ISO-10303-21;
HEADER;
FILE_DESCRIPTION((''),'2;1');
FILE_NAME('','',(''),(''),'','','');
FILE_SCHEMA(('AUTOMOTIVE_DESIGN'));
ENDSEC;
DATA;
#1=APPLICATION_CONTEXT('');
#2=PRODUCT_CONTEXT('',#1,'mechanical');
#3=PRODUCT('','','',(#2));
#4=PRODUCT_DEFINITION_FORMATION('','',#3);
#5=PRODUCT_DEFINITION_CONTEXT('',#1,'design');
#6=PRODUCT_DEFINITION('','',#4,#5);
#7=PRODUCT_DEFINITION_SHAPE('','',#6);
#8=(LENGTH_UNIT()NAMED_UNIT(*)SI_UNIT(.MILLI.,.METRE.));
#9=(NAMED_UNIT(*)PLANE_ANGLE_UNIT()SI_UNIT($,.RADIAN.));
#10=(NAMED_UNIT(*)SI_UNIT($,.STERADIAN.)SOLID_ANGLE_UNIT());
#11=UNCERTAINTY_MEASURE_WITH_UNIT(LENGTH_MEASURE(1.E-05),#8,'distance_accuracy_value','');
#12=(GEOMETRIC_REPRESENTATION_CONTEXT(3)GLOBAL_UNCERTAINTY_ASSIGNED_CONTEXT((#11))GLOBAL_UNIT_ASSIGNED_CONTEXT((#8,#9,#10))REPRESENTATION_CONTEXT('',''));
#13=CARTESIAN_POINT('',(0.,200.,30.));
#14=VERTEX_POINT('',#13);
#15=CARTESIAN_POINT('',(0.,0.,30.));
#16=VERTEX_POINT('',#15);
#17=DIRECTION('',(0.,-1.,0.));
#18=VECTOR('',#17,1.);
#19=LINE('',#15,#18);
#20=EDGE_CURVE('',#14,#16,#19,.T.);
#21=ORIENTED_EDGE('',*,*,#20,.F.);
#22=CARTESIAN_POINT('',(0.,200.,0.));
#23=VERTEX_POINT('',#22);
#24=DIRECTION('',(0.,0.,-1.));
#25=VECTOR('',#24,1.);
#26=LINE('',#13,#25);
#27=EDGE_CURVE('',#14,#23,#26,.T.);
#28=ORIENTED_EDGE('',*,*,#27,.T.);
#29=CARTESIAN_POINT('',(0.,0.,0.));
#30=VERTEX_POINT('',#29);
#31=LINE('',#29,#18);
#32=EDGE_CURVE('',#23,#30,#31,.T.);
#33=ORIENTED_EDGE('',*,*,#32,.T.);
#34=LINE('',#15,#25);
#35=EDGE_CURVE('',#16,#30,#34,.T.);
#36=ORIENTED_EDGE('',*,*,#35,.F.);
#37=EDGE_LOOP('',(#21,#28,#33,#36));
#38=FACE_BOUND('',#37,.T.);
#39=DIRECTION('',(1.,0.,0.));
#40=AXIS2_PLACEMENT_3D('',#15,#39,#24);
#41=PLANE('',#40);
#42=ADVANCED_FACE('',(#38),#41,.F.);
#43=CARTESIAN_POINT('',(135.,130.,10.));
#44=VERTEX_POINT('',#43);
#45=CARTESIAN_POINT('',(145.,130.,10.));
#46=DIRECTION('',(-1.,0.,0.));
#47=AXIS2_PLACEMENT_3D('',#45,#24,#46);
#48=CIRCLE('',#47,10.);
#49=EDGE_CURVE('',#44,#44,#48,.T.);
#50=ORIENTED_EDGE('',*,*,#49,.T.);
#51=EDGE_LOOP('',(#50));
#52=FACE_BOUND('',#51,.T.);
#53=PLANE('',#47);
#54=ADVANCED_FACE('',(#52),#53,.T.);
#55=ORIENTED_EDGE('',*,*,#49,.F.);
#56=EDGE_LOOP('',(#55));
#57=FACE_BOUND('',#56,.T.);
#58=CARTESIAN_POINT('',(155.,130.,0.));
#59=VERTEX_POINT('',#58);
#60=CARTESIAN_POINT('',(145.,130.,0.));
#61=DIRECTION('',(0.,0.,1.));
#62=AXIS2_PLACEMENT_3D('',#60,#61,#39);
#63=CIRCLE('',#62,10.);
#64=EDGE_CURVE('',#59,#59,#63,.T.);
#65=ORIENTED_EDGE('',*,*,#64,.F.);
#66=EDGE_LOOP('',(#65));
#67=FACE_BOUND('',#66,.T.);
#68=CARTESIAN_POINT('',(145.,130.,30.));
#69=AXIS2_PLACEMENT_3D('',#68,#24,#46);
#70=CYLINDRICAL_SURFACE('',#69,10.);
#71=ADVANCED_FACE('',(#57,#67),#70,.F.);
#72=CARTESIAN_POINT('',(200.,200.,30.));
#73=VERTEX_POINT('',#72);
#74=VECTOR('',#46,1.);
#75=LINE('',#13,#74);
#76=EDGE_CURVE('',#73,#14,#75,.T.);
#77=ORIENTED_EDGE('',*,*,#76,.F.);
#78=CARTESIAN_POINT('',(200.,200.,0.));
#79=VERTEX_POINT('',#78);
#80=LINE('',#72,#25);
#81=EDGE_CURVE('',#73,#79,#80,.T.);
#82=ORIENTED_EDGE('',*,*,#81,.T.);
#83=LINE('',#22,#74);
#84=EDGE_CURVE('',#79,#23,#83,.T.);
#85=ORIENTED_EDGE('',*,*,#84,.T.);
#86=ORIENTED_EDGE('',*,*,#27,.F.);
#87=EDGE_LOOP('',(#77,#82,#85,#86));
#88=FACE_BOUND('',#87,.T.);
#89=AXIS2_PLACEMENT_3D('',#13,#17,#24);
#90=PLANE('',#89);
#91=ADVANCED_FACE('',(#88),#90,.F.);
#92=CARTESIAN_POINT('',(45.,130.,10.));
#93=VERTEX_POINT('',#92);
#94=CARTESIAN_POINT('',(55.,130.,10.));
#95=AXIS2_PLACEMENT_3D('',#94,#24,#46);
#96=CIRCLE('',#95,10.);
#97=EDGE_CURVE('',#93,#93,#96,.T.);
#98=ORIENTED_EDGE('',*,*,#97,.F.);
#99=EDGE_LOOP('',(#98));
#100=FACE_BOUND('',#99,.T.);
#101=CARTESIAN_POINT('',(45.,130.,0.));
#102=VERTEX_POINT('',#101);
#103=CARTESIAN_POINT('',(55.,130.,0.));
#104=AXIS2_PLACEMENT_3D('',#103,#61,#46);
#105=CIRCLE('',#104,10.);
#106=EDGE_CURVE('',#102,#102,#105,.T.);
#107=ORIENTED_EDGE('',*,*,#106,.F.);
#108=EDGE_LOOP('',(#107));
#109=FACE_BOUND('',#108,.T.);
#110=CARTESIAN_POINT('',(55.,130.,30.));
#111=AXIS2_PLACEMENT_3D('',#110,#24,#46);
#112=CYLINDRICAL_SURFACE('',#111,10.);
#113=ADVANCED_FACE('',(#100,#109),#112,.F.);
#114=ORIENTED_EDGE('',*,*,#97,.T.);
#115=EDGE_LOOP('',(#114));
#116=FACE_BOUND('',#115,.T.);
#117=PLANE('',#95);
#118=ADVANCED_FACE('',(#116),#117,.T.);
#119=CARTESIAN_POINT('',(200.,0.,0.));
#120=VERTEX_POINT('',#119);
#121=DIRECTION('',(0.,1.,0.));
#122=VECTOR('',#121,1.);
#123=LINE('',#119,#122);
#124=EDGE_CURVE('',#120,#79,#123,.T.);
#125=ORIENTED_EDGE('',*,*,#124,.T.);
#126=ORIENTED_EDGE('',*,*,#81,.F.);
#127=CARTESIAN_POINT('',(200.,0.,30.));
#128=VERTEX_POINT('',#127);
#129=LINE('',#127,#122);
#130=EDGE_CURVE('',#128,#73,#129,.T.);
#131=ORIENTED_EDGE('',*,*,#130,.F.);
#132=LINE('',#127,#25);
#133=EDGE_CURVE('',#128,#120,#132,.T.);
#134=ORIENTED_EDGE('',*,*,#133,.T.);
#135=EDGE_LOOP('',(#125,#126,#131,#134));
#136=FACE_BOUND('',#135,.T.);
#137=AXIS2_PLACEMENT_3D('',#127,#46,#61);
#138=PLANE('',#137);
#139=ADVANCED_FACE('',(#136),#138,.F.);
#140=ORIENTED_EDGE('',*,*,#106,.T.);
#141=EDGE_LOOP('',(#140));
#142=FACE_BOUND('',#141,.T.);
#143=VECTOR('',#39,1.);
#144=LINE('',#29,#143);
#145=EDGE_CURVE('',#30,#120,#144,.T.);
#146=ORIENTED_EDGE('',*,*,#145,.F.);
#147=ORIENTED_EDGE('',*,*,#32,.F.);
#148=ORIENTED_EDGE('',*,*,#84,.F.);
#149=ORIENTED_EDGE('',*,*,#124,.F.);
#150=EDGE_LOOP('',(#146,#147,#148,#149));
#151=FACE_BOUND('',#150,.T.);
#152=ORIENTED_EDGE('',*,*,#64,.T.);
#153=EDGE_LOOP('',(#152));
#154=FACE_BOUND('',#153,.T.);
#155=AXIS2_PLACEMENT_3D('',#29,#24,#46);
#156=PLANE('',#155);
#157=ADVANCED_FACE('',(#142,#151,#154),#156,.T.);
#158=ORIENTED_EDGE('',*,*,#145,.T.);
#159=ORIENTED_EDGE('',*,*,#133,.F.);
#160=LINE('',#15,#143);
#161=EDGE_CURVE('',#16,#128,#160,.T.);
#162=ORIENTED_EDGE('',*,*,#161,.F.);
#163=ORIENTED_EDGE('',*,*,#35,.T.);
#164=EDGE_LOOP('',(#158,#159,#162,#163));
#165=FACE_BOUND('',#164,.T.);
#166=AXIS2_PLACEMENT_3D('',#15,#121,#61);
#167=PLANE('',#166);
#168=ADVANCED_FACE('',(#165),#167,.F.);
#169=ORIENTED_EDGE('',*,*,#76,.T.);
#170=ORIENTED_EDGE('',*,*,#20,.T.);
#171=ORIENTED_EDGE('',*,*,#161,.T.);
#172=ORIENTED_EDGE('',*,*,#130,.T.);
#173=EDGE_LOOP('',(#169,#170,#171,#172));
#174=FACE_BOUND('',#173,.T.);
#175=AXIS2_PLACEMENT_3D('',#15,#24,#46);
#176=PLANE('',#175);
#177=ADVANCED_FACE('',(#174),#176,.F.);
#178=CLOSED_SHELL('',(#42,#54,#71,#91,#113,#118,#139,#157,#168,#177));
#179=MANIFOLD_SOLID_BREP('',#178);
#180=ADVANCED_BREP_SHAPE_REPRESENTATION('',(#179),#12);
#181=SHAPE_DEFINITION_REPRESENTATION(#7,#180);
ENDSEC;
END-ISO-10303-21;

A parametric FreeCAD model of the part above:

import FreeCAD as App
import Part
import Sketcher
from FreeCAD import Vector
Q = App.Units.Quantity

doc = App.newDocument("Part")
body = doc.addObject("PartDesign::Body", "Body")

# Sketch on XY plane
sketch1 = body.newObject("Sketcher::SketchObject", "Sketch")
sketch1.AttachmentSupport = (doc.getObject("XY_Plane"), [""])
sketch1.MapMode = "FlatFace"
sketch1.addGeometry([
    Part.LineSegment(Vector(0, 200, 0), Vector(0, 0, 0)),  # 0
    Part.LineSegment(Vector(0, 0, 0), Vector(200, 0, 0)),  # 1
    Part.LineSegment(Vector(200, 0, 0), Vector(200, 200, 0)),  # 2
    Part.LineSegment(Vector(200, 200, 0), Vector(0, 200, 0)),  # 3
    Part.Circle(Vector(55, 130, 0), Vector(0, 0, 1), 10),  # 4
    Part.Circle(Vector(145, 130, 0), Vector(0, 0, 1), 10),  # 5
], False)
sketch1.addConstraint([
    Sketcher.Constraint("Coincident", 0, 2, 1, 1),
    Sketcher.Constraint("Coincident", 1, 2, 2, 1),
    Sketcher.Constraint("Coincident", 2, 2, 3, 1),
    Sketcher.Constraint("Coincident", 3, 2, 0, 1),
    Sketcher.Constraint("Vertical", 0),
    Sketcher.Constraint("Horizontal", 1),
    Sketcher.Constraint("Vertical", 2),
    Sketcher.Constraint("Horizontal", 3),
    Sketcher.Constraint("Coincident", 0, 2, -1, 1),
    Sketcher.Constraint("Equal", 4, 5),
    Sketcher.Constraint("Horizontal", 4, 3, 5, 3),
    Sketcher.Constraint("Equal", 3, 0),
    Sketcher.Constraint("Diameter", 4, Q("20 mm")),
    Sketcher.Constraint("DistanceX", 1, 1, 1, 2, Q("200 mm")),
    Sketcher.Constraint("DistanceX", -1, 1, 4, 3, Q("55 mm")),
    Sketcher.Constraint("DistanceY", -1, 1, 4, 3, Q("130 mm")),
    Sketcher.Constraint("DistanceX", -1, 1, 5, 3, Q("145 mm")),
])
pad1 = body.newObject("PartDesign::Pad", "Pad")
pad1.Profile = sketch1
pad1.Length = 30

# Sketch on XY plane
sketch2 = body.newObject("Sketcher::SketchObject", "Sketch001")
sketch2.AttachmentSupport = (doc.getObject("XY_Plane"), [""])
sketch2.MapMode = "FlatFace"
sketch2.AttachmentOffset = App.Placement(Vector(0, 0, 10), App.Rotation())
sketch2.addGeometry([
    Part.Circle(Vector(145, 130, 0), Vector(0, 0, 1), 10),
    Part.Circle(Vector(55, 130, 0), Vector(0, 0, 1), 10),
], False)
sketch2.addConstraint([
    Sketcher.Constraint("Equal", 0, 1),
    Sketcher.Constraint("Horizontal", 0, 3, 1, 3),
    Sketcher.Constraint("Diameter", 0, Q("20 mm")),
    Sketcher.Constraint("DistanceX", -1, 1, 0, 3, Q("145 mm")),
    Sketcher.Constraint("DistanceY", -1, 1, 0, 3, Q("130 mm")),
    Sketcher.Constraint("DistanceX", -1, 1, 1, 3, Q("55 mm")),
])
pad2 = body.newObject("PartDesign::Pad", "Pad001")
pad2.Profile = sketch2
pad2.Length = 20

doc.recompute()
